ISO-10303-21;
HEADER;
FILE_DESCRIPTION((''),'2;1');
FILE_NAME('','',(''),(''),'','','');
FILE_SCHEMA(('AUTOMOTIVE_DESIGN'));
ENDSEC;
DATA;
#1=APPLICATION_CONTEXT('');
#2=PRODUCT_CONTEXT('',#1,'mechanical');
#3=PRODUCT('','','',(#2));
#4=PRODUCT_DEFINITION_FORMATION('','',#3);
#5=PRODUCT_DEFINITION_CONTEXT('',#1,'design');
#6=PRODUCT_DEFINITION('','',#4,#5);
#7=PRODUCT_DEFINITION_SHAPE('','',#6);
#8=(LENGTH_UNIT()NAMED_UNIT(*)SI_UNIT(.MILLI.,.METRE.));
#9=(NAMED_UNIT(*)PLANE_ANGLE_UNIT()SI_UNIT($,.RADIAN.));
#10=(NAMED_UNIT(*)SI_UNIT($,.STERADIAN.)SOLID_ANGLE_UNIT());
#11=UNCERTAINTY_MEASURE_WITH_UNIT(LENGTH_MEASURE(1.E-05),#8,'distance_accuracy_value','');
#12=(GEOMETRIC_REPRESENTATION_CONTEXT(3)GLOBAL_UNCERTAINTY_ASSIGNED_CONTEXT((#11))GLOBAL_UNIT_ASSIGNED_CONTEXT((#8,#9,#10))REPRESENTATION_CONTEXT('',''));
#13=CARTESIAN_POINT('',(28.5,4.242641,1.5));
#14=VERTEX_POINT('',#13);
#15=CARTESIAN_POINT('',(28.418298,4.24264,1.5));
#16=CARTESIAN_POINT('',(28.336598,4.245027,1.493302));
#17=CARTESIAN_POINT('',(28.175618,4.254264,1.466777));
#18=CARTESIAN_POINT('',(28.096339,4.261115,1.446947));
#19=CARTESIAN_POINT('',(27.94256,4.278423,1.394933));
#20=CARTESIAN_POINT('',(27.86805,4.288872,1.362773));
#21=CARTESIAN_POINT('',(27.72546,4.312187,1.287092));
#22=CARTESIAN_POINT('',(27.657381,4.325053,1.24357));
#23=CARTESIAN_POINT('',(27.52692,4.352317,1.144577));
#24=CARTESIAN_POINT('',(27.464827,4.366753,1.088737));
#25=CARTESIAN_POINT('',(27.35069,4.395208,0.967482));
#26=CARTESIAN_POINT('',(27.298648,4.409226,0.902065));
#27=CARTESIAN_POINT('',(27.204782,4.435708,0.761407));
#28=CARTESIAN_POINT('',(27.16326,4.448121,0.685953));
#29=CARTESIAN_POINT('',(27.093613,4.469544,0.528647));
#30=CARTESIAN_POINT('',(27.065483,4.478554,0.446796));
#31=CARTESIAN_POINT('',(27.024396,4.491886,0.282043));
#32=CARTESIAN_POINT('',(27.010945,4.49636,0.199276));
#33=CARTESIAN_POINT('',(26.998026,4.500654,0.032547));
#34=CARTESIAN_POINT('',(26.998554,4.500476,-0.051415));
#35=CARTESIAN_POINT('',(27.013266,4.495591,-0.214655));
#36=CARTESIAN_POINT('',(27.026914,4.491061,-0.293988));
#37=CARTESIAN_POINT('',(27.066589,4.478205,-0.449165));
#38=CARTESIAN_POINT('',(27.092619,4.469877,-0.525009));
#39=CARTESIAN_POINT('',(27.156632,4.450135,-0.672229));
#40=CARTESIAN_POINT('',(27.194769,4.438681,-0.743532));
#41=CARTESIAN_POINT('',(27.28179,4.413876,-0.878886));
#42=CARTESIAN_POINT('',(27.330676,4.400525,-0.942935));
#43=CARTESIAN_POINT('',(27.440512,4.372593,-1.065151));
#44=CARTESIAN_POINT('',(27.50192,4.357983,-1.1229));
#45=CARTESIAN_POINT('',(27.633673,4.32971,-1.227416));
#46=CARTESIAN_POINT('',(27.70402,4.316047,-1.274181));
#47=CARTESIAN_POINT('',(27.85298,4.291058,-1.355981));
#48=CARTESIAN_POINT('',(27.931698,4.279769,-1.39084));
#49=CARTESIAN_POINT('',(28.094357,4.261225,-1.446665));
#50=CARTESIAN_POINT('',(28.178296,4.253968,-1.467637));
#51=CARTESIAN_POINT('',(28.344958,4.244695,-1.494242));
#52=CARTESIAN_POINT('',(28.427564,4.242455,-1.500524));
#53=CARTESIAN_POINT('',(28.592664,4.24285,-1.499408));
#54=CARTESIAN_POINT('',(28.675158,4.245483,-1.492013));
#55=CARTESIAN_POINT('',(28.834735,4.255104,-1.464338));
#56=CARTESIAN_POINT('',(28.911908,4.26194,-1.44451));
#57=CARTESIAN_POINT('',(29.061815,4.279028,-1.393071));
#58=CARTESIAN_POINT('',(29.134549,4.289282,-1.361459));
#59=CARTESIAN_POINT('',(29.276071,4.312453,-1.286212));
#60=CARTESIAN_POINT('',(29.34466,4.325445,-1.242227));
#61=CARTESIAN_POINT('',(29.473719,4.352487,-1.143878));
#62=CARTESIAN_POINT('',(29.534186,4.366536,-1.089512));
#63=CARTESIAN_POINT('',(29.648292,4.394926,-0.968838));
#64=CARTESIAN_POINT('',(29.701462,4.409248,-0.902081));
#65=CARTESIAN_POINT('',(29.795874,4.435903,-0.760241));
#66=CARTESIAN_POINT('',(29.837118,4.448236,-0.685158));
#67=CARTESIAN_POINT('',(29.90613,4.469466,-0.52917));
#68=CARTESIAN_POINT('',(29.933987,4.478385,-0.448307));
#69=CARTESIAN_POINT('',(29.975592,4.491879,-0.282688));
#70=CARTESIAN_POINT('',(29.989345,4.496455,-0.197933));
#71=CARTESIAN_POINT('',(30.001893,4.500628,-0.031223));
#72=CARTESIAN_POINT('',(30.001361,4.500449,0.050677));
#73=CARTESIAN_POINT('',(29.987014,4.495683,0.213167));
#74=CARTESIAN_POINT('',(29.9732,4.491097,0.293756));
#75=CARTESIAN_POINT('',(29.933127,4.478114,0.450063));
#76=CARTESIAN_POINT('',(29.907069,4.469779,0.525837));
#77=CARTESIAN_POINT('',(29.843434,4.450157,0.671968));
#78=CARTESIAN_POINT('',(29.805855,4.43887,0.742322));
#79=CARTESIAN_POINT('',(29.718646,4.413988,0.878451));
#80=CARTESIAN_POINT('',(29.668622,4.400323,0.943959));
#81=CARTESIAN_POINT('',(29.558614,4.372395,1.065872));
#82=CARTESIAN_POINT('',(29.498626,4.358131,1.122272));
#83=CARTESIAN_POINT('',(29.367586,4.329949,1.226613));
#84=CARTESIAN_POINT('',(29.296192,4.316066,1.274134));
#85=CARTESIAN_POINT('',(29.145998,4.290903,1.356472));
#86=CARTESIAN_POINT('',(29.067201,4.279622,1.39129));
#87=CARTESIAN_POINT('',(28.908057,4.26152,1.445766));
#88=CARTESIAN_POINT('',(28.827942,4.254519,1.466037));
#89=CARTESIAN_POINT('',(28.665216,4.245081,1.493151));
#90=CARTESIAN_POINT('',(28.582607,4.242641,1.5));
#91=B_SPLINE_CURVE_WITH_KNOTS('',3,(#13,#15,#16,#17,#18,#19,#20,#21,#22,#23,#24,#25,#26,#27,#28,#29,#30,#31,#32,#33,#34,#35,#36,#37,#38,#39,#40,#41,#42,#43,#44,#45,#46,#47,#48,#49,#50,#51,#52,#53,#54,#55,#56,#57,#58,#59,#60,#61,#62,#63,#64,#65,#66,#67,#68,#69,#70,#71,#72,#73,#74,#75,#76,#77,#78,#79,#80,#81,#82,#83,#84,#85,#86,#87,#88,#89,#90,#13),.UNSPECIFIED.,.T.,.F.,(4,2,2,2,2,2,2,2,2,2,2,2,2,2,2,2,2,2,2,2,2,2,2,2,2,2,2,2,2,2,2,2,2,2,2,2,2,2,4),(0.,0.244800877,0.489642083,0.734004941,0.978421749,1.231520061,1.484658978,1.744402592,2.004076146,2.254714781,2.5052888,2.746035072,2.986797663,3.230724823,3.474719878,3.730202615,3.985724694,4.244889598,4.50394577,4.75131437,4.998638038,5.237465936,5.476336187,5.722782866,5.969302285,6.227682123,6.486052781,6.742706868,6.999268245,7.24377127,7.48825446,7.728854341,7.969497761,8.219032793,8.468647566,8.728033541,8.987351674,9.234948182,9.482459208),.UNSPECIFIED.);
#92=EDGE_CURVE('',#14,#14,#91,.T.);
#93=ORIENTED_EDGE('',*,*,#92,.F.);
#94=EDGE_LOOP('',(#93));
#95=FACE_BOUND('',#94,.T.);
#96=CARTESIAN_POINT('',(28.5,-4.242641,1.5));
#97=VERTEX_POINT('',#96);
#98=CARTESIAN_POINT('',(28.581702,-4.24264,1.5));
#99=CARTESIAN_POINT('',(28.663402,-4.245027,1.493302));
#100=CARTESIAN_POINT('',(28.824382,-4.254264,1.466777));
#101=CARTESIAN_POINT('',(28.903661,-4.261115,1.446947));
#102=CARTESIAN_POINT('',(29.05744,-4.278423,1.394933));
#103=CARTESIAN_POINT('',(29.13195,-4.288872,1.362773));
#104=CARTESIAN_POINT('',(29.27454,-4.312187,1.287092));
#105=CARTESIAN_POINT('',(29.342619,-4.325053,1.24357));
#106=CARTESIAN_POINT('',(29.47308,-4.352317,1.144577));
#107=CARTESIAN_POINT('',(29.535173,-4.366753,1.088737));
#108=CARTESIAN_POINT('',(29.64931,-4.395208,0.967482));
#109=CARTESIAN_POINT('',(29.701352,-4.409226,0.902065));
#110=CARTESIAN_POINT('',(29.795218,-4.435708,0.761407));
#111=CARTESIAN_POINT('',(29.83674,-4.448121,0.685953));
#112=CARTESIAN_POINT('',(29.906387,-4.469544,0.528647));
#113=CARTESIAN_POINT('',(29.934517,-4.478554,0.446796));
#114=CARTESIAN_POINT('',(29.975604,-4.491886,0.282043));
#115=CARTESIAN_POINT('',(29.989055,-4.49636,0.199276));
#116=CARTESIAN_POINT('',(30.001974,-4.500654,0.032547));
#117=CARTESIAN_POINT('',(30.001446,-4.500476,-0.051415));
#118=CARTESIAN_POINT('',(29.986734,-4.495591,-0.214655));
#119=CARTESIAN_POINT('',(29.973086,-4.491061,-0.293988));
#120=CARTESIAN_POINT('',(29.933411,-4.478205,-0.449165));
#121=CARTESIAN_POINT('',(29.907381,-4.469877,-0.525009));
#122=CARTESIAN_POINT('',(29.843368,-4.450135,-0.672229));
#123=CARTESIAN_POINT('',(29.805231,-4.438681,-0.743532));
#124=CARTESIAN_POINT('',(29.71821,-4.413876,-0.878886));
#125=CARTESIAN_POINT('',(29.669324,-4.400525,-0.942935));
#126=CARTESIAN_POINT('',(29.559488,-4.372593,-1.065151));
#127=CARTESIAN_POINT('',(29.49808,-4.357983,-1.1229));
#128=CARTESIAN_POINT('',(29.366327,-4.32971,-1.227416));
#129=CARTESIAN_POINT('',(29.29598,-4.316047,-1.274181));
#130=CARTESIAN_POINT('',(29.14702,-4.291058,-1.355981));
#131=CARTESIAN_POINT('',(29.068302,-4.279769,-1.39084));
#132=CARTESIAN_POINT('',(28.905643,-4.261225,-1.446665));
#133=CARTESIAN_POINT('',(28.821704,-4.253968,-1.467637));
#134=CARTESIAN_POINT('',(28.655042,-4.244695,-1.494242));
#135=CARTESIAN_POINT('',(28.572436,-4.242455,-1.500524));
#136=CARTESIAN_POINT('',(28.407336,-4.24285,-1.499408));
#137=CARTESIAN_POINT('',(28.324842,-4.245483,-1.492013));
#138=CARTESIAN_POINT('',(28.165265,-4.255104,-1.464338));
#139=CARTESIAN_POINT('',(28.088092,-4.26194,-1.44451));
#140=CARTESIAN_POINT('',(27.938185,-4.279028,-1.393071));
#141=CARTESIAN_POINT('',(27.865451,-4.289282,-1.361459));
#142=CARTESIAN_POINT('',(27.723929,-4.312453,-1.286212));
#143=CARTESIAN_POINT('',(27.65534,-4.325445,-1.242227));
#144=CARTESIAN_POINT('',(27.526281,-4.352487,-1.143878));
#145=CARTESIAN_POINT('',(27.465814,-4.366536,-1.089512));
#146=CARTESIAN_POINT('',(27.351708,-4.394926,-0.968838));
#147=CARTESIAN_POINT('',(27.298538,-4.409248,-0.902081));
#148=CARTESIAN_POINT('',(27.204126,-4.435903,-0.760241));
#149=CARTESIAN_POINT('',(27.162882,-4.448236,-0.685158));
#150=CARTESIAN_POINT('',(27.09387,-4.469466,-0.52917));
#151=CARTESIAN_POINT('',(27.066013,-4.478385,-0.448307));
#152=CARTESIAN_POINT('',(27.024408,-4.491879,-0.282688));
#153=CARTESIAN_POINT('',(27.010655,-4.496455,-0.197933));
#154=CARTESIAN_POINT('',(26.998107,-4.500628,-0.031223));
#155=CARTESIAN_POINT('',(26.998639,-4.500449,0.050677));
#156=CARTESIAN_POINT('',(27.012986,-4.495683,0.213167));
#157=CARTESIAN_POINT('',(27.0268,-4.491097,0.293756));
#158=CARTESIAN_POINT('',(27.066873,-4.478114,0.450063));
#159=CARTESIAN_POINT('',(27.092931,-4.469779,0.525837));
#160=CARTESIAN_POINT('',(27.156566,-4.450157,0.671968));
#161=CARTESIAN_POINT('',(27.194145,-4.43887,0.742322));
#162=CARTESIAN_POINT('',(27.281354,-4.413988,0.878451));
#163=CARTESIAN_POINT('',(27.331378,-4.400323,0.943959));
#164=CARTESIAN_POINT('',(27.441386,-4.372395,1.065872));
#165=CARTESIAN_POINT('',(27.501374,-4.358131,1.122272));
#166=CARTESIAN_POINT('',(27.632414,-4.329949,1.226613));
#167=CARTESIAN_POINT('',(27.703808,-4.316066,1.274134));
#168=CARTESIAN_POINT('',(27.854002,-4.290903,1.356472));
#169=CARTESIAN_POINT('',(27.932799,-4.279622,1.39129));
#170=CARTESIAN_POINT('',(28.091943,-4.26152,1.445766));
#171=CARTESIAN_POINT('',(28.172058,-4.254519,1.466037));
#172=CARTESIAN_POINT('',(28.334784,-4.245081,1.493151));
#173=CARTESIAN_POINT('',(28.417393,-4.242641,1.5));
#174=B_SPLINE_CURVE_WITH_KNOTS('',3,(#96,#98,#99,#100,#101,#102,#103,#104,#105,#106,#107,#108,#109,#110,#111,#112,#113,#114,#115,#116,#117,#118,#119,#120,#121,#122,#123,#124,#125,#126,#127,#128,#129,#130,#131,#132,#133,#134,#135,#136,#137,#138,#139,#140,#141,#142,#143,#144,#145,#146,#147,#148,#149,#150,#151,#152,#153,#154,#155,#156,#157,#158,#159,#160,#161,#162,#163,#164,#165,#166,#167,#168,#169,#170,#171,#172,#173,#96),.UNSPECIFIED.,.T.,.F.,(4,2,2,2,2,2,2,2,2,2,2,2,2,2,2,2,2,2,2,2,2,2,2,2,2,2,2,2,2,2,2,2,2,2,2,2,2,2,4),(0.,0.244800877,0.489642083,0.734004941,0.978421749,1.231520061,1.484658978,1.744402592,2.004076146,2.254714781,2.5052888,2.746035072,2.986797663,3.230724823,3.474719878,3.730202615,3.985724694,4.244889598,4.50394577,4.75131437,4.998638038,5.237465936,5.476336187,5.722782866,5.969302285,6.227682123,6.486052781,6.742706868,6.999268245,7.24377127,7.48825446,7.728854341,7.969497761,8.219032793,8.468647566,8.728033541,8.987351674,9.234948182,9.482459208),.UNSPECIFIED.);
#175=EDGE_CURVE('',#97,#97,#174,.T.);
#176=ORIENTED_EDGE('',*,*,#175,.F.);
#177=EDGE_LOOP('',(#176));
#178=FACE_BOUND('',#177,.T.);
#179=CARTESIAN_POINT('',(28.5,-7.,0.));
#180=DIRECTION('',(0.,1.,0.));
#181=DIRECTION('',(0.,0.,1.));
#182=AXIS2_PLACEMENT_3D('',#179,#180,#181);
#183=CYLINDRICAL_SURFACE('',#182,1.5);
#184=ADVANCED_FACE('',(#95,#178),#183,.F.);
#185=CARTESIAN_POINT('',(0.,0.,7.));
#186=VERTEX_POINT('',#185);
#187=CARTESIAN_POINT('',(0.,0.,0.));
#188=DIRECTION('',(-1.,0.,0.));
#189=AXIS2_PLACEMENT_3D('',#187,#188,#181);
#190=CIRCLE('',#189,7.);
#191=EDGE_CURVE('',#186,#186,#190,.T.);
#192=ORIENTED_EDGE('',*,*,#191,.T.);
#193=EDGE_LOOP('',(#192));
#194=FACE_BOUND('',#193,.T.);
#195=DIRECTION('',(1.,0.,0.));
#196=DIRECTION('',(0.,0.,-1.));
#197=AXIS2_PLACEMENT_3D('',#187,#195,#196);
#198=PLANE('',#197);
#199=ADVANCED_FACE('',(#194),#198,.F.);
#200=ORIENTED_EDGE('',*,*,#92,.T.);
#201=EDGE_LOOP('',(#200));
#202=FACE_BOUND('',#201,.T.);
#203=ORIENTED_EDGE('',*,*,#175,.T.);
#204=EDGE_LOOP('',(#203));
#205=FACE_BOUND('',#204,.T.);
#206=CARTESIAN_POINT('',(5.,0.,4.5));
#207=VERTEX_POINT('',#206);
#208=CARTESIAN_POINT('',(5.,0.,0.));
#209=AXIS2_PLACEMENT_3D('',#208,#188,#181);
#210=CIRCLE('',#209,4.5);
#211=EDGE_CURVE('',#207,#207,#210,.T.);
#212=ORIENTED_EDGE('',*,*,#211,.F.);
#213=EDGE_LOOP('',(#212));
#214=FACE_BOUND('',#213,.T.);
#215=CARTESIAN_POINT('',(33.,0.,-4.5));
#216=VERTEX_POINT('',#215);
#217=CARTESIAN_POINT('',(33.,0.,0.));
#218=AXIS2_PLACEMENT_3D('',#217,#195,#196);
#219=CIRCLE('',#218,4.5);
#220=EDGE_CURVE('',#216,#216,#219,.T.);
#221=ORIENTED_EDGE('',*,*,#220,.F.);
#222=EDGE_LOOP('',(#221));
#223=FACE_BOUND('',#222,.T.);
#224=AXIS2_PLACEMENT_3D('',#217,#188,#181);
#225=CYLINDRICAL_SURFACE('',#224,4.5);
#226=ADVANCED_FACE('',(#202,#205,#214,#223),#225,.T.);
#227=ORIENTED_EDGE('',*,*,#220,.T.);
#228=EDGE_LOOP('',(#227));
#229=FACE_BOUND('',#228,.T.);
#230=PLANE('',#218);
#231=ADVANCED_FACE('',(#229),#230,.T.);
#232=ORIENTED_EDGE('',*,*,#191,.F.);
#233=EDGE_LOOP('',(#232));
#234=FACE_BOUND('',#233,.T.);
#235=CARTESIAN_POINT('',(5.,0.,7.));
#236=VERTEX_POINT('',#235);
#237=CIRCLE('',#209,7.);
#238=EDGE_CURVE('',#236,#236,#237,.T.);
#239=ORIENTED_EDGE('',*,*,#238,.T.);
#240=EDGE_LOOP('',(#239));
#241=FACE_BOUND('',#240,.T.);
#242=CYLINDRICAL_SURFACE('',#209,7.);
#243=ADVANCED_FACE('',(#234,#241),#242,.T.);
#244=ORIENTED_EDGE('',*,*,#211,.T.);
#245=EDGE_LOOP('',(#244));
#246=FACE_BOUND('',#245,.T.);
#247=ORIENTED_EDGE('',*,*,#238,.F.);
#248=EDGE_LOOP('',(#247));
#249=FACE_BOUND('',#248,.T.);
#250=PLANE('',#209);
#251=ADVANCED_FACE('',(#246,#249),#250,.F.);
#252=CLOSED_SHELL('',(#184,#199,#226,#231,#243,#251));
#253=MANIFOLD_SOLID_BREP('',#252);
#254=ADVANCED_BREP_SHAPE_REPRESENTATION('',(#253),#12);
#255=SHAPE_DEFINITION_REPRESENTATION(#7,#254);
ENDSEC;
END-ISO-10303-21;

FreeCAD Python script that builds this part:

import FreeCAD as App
import Part
import Sketcher

doc = App.newDocument("Part")
params = doc.addObject("Spreadsheet::Sheet", "Params")
for row, (alias, value) in enumerate([
    ("sketch1_diameter", "9 mm"),
    ("pad1_length", "33 mm"),
    ("sketch2_diameter", "14 mm"),
    ("pad2_length", "5 mm"),
    ("sketch3_diameter", "3 mm"),
], start=1):
    params.set(f"A{row}", alias)
    params.set(f"B{row}", "=" + value)
    params.setAlias(f"B{row}", alias)

body = doc.addObject("PartDesign::Body", "Body")

# Sketch on YZ plane
sketch1 = body.newObject("Sketcher::SketchObject", "Sketch")
sketch1.AttachmentSupport = (doc.getObject("YZ_Plane"), [""])
sketch1.MapMode = "FlatFace"
sketch1.addGeometry(Part.Circle(App.Vector(0, 0, 0), App.Vector(0, 0, 1), 4.5), False)
sketch1.addConstraint([
    Sketcher.Constraint("Coincident", 0, 3, -1, 1),
    Sketcher.Constraint("Diameter", 0, 9.0),
])
sketch1.setExpression("Constraints[1]", "Params.sketch1_diameter")
pad1 = body.newObject("PartDesign::Pad", "Pad")
pad1.Profile = sketch1
pad1.setExpression("Length", "Params.pad1_length")

# Sketch on YZ plane
sketch2 = body.newObject("Sketcher::SketchObject", "Sketch001")
sketch2.AttachmentSupport = (doc.getObject("YZ_Plane"), [""])
sketch2.MapMode = "FlatFace"
sketch2.addGeometry(Part.Circle(App.Vector(0, 0, 0), App.Vector(0, 0, 1), 7), False)
sketch2.addConstraint([
    Sketcher.Constraint("Coincident", 0, 3, -1, 1),
    Sketcher.Constraint("Diameter", 0, 14.0),
])
sketch2.setExpression("Constraints[1]", "Params.sketch2_diameter")
pad2 = body.newObject("PartDesign::Pad", "Pad001")
pad2.Profile = sketch2
pad2.setExpression("Length", "Params.pad2_length")

# Sketch on XZ plane
sketch3 = body.newObject("Sketcher::SketchObject", "Sketch002")
sketch3.AttachmentSupport = (doc.getObject("XZ_Plane"), [""])
sketch3.MapMode = "FlatFace"
sketch3.addGeometry(Part.Circle(App.Vector(28.5, 0, 0), App.Vector(0, 0, 1), 1.5), False)
sketch3.addConstraint([
    Sketcher.Constraint("PointOnObject", 0, 3, -1),
    Sketcher.Constraint("Diameter", 0, 3.0),
    Sketcher.Constraint("DistanceX", -1, 1, 0, 3, 28.5),
])
sketch3.setExpression("Constraints[1]", "Params.sketch3_diameter")
pocket1 = body.newObject("PartDesign::Pocket", "Pocket")
pocket1.Profile = sketch3
pocket1.Type = "ThroughAll"
pocket1.Midplane = True

doc.recompute()
